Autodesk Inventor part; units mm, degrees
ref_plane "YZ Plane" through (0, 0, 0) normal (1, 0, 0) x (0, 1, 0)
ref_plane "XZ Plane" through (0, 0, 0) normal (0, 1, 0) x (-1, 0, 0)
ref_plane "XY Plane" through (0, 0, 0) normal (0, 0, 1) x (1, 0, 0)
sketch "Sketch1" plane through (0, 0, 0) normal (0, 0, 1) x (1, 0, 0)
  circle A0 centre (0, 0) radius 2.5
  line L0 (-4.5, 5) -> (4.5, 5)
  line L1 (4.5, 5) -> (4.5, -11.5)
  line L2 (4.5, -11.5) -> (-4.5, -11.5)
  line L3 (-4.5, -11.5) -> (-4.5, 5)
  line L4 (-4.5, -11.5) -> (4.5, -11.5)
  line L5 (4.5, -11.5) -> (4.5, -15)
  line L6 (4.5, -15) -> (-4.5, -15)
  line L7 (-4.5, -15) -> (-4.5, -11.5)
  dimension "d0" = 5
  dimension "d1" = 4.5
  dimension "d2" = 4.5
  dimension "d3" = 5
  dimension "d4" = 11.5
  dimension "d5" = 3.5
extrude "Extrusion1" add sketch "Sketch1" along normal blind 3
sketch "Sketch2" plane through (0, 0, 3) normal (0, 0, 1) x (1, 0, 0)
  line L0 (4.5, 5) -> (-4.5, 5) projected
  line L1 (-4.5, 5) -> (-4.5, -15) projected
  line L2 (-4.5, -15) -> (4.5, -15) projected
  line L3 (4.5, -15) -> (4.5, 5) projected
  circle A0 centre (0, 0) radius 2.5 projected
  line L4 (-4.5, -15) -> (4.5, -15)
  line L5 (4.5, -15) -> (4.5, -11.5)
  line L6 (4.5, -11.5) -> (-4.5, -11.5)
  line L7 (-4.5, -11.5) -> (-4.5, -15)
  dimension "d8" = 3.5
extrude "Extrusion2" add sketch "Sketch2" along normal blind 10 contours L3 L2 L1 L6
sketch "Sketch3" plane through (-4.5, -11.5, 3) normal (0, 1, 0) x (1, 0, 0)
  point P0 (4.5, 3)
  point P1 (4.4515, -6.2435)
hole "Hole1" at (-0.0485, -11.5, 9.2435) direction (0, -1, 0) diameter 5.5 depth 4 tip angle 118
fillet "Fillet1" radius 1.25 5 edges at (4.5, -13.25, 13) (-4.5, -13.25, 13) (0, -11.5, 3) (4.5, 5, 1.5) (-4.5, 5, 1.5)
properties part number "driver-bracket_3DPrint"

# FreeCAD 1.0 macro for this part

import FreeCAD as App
import Part
import Sketcher
from FreeCAD import Vector
Q = App.Units.Quantity


def edges_at(feature, points):
    """Names of the edges that pass closest to the given points."""
    edges = feature.Shape.Edges
    near = lambda p: min(range(len(edges)), key=lambda i: edges[i].distToShape(Part.Vertex(*p))[0])
    return sorted({f"Edge{near(p) + 1}" for p in points})


def add_polygon(sketch, points):
    """Adds a closed chain of lines whose ends are joined by coincident constraints."""
    first, n = sketch.GeometryCount, len(points)
    for a, b in zip(points, points[1:] + points[:1]):
        sketch.addGeometry(Part.LineSegment(App.Vector(*a, 0), App.Vector(*b, 0)), False)
    for i in range(n):
        sketch.addConstraint(Sketcher.Constraint("Coincident", first + i, 2, first + (i + 1) % n, 1))

doc = App.newDocument("Part")
body = doc.addObject("PartDesign::Body", "Body")

# Sketch on XY plane
sketch1 = body.newObject("Sketcher::SketchObject", "Sketch")
sketch1.AttachmentSupport = (doc.getObject("XY_Plane"), [""])
sketch1.MapMode = "FlatFace"
add_polygon(sketch1, [(4.5, 5), (-4.5, 5), (-4.5, -15), (4.5, -15)])  # lines 0-3
sketch1.addGeometry(Part.Circle(Vector(0, 0, 0), Vector(0, 0, 1), 2.5), False)  # 4
sketch1.addConstraint(Sketcher.Constraint("Horizontal", 0))
sketch1.addConstraint(Sketcher.Constraint("Vertical", 1))
sketch1.addConstraint(Sketcher.Constraint("Horizontal", 2))
sketch1.addConstraint(Sketcher.Constraint("Vertical", 3))
sketch1.addConstraint(Sketcher.Constraint("Coincident", 4, 3, -1, 1))
sketch1.addConstraint(Sketcher.Constraint("Diameter", 4, Q("5 mm")))
sketch1.addConstraint(Sketcher.Constraint("DistanceY", -1, 1, 0, 2, Q("5 mm")))
sketch1.addConstraint(Sketcher.Constraint("DistanceX", 0, 2, -1, 1, Q("4.5 mm")))
sketch1.addConstraint(Sketcher.Constraint("DistanceX", -1, 1, 2, 2, Q("4.5 mm")))
sketch1.addConstraint(Sketcher.Constraint("DistanceY", 1, 2, 1, 1, Q("20 mm")))
pad1 = body.newObject("PartDesign::Pad", "Pad")
pad1.Profile = sketch1
pad1.Length = 3

# Sketch on XY plane
sketch2 = body.newObject("Sketcher::SketchObject", "Sketch001")
sketch2.AttachmentSupport = (doc.getObject("XY_Plane"), [""])
sketch2.MapMode = "FlatFace"
sketch2.AttachmentOffset = App.Placement(Vector(0, 0, 3), App.Rotation())
add_polygon(sketch2, [(4.5, -15), (4.5, -11.5), (-4.5, -11.5), (-4.5, -15)])  # lines 0-3
sketch2.addConstraint(Sketcher.Constraint("Vertical", 0))
sketch2.addConstraint(Sketcher.Constraint("Horizontal", 1))
sketch2.addConstraint(Sketcher.Constraint("Vertical", 2))
sketch2.addConstraint(Sketcher.Constraint("Horizontal", 3))
sketch2.addConstraint(Sketcher.Constraint("DistanceY", 0, 1, 0, 2, Q("3.5 mm")))
sketch2.addConstraint(Sketcher.Constraint("DistanceX", 1, 2, 1, 1, Q("9 mm")))
sketch2.addConstraint(Sketcher.Constraint("DistanceY", 2, 2, -1, 1, Q("15 mm")))
sketch2.addConstraint(Sketcher.Constraint("DistanceX", -1, 1, 0, 2, Q("4.5 mm")))
pad2 = body.newObject("PartDesign::Pad", "Pad001")
pad2.Profile = sketch2
pad2.Length = 10

# Sketch on XZ plane
sketch3 = body.newObject("Sketcher::SketchObject", "Sketch002")
sketch3.AttachmentSupport = (doc.getObject("XZ_Plane"), [""])
sketch3.MapMode = "FlatFace"
sketch3.AttachmentOffset = App.Placement(Vector(0, 0, 11.5), App.Rotation())
sketch3.addGeometry(Part.Circle(Vector(-0.0485, 9.2435, 0), Vector(0, 0, 1), 2.75), False)
sketch3.addConstraint(Sketcher.Constraint("Diameter", 0, Q("5.5 mm")))
sketch3.addConstraint(Sketcher.Constraint("DistanceX", 0, 3, -1, 1, Q("0.0485 mm")))
sketch3.addConstraint(Sketcher.Constraint("DistanceY", -1, 1, 0, 3, Q("9.2435 mm")))
doc.recompute()
hole = body.newObject("PartDesign::Hole", "Hole")
hole.Profile = sketch3
hole.ThreadType = "None"
hole.Diameter = 5.5
hole.DepthType = "Dimension"
hole.Depth = 4
hole.DrillPoint = "Angled"
hole.DrillPointAngle = 118
hole.Reversed = True
doc.recompute()

fillet = body.newObject("PartDesign::Fillet", "Fillet")
fillet.Base = (hole, edges_at(hole, [
    (4.5, -13.25, 13),
    (-4.5, -13.25, 13),
    (0, -11.5, 3),
    (4.5, 5, 1.5),
    (-4.5, 5, 1.5),
]))
fillet.Radius = 1.25

doc.recompute()
